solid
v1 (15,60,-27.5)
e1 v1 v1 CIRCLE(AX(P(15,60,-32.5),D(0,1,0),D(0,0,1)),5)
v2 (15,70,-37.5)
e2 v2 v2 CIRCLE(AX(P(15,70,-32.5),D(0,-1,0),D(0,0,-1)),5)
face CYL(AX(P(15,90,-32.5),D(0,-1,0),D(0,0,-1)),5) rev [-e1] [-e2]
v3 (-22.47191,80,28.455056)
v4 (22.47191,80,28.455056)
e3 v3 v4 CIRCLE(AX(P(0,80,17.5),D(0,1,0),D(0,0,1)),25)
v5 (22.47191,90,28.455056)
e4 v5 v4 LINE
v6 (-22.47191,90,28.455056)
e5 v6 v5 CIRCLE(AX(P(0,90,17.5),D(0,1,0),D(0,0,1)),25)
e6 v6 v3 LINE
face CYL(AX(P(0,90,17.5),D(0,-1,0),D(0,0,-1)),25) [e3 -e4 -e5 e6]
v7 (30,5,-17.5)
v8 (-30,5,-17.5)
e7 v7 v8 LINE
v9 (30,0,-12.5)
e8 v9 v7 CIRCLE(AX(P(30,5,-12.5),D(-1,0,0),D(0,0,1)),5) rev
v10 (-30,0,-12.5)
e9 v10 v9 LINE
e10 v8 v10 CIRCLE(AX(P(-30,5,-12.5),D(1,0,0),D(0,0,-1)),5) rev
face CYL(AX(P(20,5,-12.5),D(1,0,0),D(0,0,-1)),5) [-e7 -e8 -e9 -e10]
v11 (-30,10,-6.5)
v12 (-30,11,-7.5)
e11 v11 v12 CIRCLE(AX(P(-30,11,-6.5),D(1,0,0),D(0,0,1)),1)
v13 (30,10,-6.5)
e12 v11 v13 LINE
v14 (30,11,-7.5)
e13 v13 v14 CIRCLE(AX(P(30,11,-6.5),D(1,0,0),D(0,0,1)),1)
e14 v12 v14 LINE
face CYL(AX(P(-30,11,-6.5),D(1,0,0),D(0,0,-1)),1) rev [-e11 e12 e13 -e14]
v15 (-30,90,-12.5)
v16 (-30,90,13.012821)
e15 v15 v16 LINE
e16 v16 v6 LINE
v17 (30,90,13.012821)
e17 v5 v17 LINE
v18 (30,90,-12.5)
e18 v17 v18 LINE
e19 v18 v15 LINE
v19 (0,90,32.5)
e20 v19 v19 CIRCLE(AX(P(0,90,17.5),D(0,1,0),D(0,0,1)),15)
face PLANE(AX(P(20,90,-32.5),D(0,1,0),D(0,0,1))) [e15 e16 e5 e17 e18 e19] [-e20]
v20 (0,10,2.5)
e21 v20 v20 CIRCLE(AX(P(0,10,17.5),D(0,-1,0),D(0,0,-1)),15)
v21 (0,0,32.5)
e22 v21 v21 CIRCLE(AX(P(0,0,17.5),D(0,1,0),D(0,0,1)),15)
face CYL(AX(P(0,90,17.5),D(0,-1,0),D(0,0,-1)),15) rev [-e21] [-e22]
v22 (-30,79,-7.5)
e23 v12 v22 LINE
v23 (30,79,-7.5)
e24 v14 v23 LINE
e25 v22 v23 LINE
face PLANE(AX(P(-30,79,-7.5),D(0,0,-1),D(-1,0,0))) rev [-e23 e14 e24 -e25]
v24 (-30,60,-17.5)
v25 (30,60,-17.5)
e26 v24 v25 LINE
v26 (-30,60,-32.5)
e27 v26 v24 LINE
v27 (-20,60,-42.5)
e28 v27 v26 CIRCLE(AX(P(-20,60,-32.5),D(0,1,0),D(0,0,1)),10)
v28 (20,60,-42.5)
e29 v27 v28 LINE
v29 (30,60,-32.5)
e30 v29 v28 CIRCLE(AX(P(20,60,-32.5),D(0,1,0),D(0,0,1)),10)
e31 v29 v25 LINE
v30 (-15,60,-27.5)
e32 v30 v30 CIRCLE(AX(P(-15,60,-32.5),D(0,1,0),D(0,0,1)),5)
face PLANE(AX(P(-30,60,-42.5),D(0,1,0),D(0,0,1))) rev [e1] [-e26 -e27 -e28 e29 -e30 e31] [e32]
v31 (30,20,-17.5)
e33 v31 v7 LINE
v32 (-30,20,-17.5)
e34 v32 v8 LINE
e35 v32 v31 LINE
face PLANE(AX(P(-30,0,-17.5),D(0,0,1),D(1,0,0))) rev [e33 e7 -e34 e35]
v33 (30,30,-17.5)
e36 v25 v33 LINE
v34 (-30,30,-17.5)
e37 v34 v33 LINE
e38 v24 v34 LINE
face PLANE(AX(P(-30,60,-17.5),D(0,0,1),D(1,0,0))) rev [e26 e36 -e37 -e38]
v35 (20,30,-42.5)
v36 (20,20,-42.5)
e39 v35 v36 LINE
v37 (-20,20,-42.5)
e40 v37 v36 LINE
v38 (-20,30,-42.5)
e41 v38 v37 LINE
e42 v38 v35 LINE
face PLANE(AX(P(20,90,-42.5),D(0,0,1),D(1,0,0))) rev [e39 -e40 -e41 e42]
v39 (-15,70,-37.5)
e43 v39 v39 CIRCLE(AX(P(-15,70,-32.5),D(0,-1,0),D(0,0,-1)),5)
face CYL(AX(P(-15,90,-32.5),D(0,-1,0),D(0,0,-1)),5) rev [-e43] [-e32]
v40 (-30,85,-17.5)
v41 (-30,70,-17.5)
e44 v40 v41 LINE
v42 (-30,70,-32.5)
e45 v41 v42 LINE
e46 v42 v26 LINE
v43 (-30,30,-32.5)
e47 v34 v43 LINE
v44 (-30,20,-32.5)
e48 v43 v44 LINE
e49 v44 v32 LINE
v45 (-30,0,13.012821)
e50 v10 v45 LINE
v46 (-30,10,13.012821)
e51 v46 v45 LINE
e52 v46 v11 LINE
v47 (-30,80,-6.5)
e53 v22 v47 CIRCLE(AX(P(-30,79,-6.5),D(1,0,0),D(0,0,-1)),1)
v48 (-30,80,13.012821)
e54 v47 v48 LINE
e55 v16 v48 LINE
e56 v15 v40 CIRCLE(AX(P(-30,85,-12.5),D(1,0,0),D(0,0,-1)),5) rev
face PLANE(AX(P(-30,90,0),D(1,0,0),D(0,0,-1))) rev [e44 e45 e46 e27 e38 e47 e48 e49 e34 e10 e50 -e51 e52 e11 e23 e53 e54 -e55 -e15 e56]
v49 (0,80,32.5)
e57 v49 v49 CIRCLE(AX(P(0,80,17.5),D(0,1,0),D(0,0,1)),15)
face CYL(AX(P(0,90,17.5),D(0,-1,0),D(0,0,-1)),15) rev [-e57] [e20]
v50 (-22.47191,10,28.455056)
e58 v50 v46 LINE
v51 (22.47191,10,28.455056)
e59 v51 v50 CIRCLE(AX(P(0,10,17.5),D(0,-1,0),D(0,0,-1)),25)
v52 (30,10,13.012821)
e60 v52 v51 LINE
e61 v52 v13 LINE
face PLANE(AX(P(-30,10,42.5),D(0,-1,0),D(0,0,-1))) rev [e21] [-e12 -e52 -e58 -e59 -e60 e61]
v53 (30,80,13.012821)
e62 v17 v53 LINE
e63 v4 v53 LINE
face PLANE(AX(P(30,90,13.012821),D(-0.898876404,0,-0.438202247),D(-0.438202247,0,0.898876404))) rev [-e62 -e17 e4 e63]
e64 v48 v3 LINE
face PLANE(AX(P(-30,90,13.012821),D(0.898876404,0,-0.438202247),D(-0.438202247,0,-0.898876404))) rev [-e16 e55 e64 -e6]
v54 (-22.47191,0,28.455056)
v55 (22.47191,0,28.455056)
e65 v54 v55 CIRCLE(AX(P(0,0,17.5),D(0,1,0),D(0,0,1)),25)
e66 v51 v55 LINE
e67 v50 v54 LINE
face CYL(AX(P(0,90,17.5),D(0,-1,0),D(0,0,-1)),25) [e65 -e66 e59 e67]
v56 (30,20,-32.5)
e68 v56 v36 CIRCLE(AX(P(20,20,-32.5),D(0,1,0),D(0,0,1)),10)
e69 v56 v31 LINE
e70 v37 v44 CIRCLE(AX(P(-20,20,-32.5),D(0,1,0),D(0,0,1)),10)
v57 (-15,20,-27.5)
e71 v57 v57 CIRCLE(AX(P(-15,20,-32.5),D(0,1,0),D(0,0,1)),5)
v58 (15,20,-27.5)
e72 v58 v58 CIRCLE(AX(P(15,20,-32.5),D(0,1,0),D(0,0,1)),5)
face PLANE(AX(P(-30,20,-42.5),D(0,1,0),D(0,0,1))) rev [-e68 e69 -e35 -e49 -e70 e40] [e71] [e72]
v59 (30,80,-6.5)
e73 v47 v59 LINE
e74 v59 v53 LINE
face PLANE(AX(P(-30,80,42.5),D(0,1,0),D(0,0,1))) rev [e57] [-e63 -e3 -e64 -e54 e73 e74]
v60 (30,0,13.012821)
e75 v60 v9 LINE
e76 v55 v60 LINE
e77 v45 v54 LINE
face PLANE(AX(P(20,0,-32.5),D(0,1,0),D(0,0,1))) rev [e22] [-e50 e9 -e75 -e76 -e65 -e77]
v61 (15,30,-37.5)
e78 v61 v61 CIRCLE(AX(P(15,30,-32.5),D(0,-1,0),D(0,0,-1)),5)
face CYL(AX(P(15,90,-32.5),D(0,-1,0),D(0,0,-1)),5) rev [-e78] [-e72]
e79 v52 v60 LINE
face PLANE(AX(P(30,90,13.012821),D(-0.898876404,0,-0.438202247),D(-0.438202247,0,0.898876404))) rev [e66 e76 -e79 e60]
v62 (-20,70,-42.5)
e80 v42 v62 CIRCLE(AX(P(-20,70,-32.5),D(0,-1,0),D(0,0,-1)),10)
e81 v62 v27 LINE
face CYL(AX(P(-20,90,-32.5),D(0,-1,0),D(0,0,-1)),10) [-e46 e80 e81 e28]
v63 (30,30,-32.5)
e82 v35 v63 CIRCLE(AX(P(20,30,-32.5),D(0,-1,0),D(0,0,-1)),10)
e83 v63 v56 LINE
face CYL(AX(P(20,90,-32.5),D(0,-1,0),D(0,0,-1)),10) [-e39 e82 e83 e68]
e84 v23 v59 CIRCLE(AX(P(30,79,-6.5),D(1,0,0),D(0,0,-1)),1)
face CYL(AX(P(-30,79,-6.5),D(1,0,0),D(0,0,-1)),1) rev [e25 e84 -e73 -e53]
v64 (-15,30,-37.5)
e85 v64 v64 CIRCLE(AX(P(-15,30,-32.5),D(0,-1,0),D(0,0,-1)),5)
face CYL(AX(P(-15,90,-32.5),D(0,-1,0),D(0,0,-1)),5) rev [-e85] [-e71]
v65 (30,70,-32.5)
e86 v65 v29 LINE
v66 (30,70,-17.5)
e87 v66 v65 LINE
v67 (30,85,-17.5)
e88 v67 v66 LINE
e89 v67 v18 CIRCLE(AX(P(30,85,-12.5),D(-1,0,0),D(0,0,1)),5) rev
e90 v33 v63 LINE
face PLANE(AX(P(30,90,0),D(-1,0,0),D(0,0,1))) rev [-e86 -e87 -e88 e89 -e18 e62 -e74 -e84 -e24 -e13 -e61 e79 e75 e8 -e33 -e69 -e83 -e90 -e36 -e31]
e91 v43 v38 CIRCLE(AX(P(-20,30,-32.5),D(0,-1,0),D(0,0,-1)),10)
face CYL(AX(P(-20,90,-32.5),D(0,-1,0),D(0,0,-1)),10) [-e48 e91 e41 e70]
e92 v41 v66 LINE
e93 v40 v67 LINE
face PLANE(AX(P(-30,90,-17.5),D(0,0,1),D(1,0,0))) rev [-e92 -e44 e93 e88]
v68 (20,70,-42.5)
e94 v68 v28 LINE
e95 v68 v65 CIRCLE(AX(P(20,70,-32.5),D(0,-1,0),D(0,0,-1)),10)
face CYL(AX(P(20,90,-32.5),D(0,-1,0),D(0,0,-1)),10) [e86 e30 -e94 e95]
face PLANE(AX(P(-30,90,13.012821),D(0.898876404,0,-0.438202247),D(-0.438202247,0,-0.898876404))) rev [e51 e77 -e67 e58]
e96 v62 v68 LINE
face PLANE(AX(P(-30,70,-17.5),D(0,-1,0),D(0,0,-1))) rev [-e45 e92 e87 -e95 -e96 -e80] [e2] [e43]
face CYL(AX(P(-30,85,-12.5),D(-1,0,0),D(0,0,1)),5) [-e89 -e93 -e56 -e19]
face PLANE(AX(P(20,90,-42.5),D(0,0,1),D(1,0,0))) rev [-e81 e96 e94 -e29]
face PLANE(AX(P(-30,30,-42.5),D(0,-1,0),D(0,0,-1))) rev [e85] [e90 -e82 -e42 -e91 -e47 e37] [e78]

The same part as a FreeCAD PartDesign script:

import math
import FreeCAD as App
import Part
import Sketcher
Q = App.Units.Quantity


def edges_at(feature, points):
    """Names of the edges that pass closest to the given points."""
    edges = feature.Shape.Edges
    near = lambda p: min(range(len(edges)), key=lambda i: edges[i].distToShape(Part.Vertex(*p))[0])
    return sorted({f"Edge{near(p) + 1}" for p in points})

doc = App.newDocument("Part")
body = doc.addObject("PartDesign::Body", "Body")

# Sketch on XZ plane
sketch1 = body.newObject("Sketcher::SketchObject", "Sketch")
sketch1.AttachmentSupport = (doc.getObject("XZ_Plane"), [""])
sketch1.MapMode = "FlatFace"
sketch1.addGeometry([
    Part.ArcOfCircle(Part.Circle(App.Vector(20, -32.5, 0), App.Vector(0, 0, 1), 10), math.radians(-90), math.radians(0)),  # 0
    Part.LineSegment(App.Vector(20, -42.5, 0), App.Vector(-20, -42.5, 0)),  # 1
    Part.ArcOfCircle(Part.Circle(App.Vector(-20, -32.5, 0), App.Vector(0, 0, 1), 10), math.radians(180), math.radians(270)),  # 2
    Part.LineSegment(App.Vector(-30, -32.5, 0), App.Vector(-30, 13.012821, 0)),  # 3
    Part.LineSegment(App.Vector(-30, 13.012821, 0), App.Vector(-22.47191, 28.455056, 0)),  # 4
    Part.ArcOfCircle(Part.Circle(App.Vector(0, 17.5, 0), App.Vector(0, 0, 1), 25), math.radians(25.989234), math.radians(154.010766)),  # 5
    Part.LineSegment(App.Vector(22.47191, 28.455056, 0), App.Vector(30, 13.012821, 0)),  # 6
    Part.LineSegment(App.Vector(30, 13.012821, 0), App.Vector(30, -32.5, 0)),  # 7
    Part.Circle(App.Vector(0, 17.5, 0), App.Vector(0, 0, 1), 15),  # 8
    Part.Circle(App.Vector(-15, -32.5, 0), App.Vector(0, 0, 1), 5),  # 9
    Part.Circle(App.Vector(15, -32.5, 0), App.Vector(0, 0, 1), 5),  # 10
], False)
sketch1.addConstraint([
    Sketcher.Constraint("Tangent", 0, 1, 1, 1),
    Sketcher.Constraint("Tangent", 1, 2, 2, 2),
    Sketcher.Constraint("Tangent", 2, 1, 3, 1),
    Sketcher.Constraint("Coincident", 3, 2, 4, 1),
    Sketcher.Constraint("Tangent", 4, 2, 5, 2),
    Sketcher.Constraint("Tangent", 5, 1, 6, 1),
    Sketcher.Constraint("Coincident", 6, 2, 7, 1),
    Sketcher.Constraint("Tangent", 7, 2, 0, 2),
    Sketcher.Constraint("Horizontal", 1),
    Sketcher.Constraint("Vertical", 3),
    Sketcher.Constraint("Vertical", 7),
    Sketcher.Constraint("Coincident", 8, 3, 5, 3),
    Sketcher.Constraint("Equal", 0, 2),
    Sketcher.Constraint("Equal", 9, 10),
    Sketcher.Constraint("Symmetric", 9, 3, 10, 3, -2),
    Sketcher.Constraint("Symmetric", 4, 2, 5, 1, -2),
    Sketcher.Constraint("Horizontal", 2, 3, 9, 3),
    Sketcher.Constraint("Horizontal", 3, 2, 6, 2),
    Sketcher.Constraint("Diameter", 8, Q("30 mm")),
    Sketcher.Constraint("Diameter", 9, Q("10 mm")),
    Sketcher.Constraint("Radius", 0, Q("10 mm")),
    Sketcher.Constraint("Radius", 5, Q("25 mm")),
    Sketcher.Constraint("DistanceX", 1, 2, 1, 1, Q("40 mm")),
    Sketcher.Constraint("DistanceX", 9, 3, -1, 1, Q("15 mm")),
    Sketcher.Constraint("DistanceY", 0, 3, 5, 3, Q("50 mm")),
    Sketcher.Constraint("DistanceY", 0, 3, -1, 1, Q("32.5 mm")),
    Sketcher.Constraint("DistanceY", 3, 1, 3, 2, Q("45.512821 mm")),
])
pad1 = body.newObject("PartDesign::Pad", "Pad")
pad1.Profile = sketch1
pad1.Length = 90
pad1.Reversed = True

# Sketch on YZ plane
sketch2 = body.newObject("Sketcher::SketchObject", "Sketch001")
sketch2.AttachmentSupport = (doc.getObject("YZ_Plane"), [""])
sketch2.MapMode = "FlatFace"
sketch2.AttachmentOffset = App.Placement(App.Vector(0, 0, 30), App.Rotation())
sketch2.addGeometry([
    Part.LineSegment(App.Vector(80, -6.5, 0), App.Vector(80, 42.5, 0)),  # 0
    Part.LineSegment(App.Vector(80, 42.5, 0), App.Vector(10, 42.5, 0)),  # 1
    Part.LineSegment(App.Vector(10, 42.5, 0), App.Vector(10, -6.5, 0)),  # 2
    Part.ArcOfCircle(Part.Circle(App.Vector(11, -6.5, 0), App.Vector(0, 0, 1), 1), math.radians(-180), math.radians(-90)),  # 3
    Part.LineSegment(App.Vector(11, -7.5, 0), App.Vector(79, -7.5, 0)),  # 4
    Part.ArcOfCircle(Part.Circle(App.Vector(79, -6.5, 0), App.Vector(0, 0, 1), 1), math.radians(-90), math.radians(0)),  # 5
    Part.LineSegment(App.Vector(90, -17.5, 0), App.Vector(70, -17.5, 0)),  # 6
    Part.LineSegment(App.Vector(70, -17.5, 0), App.Vector(70, -42.5, 0)),  # 7
    Part.LineSegment(App.Vector(70, -42.5, 0), App.Vector(90, -42.5, 0)),  # 8
    Part.LineSegment(App.Vector(90, -42.5, 0), App.Vector(90, -17.5, 0)),  # 9
    Part.LineSegment(App.Vector(20, -17.5, 0), App.Vector(0, -17.5, 0)),  # 10
    Part.LineSegment(App.Vector(0, -17.5, 0), App.Vector(0, -42.5, 0)),  # 11
    Part.LineSegment(App.Vector(0, -42.5, 0), App.Vector(20, -42.5, 0)),  # 12
    Part.LineSegment(App.Vector(20, -42.5, 0), App.Vector(20, -17.5, 0)),  # 13
    Part.LineSegment(App.Vector(60, -17.5, 0), App.Vector(30, -17.5, 0)),  # 14
    Part.LineSegment(App.Vector(30, -17.5, 0), App.Vector(30, -42.5, 0)),  # 15
    Part.LineSegment(App.Vector(30, -42.5, 0), App.Vector(60, -42.5, 0)),  # 16
    Part.LineSegment(App.Vector(60, -42.5, 0), App.Vector(60, -17.5, 0)),  # 17
], False)
sketch2.addConstraint([
    Sketcher.Constraint("Coincident", 0, 2, 1, 1),
    Sketcher.Constraint("Coincident", 1, 2, 2, 1),
    Sketcher.Constraint("Tangent", 2, 2, 3, 1),
    Sketcher.Constraint("Tangent", 3, 2, 4, 1),
    Sketcher.Constraint("Tangent", 4, 2, 5, 1),
    Sketcher.Constraint("Tangent", 5, 2, 0, 1),
    Sketcher.Constraint("Coincident", 6, 2, 7, 1),
    Sketcher.Constraint("Coincident", 7, 2, 8, 1),
    Sketcher.Constraint("Coincident", 8, 2, 9, 1),
    Sketcher.Constraint("Coincident", 9, 2, 6, 1),
    Sketcher.Constraint("Coincident", 10, 2, 11, 1),
    Sketcher.Constraint("Coincident", 11, 2, 12, 1),
    Sketcher.Constraint("Coincident", 12, 2, 13, 1),
    Sketcher.Constraint("Coincident", 13, 2, 10, 1),
    Sketcher.Constraint("Coincident", 14, 2, 15, 1),
    Sketcher.Constraint("Coincident", 15, 2, 16, 1),
    Sketcher.Constraint("Coincident", 16, 2, 17, 1),
    Sketcher.Constraint("Coincident", 17, 2, 14, 1),
    Sketcher.Constraint("Vertical", 0),
    Sketcher.Constraint("Horizontal", 1),
    Sketcher.Constraint("Vertical", 2),
    Sketcher.Constraint("Horizontal", 4),
    Sketcher.Constraint("Horizontal", 6),
    Sketcher.Constraint("Vertical", 7),
    Sketcher.Constraint("Horizontal", 8),
    Sketcher.Constraint("Vertical", 9),
    Sketcher.Constraint("Horizontal", 10),
    Sketcher.Constraint("Vertical", 11),
    Sketcher.Constraint("Horizontal", 12),
    Sketcher.Constraint("Vertical", 13),
    Sketcher.Constraint("Horizontal", 14),
    Sketcher.Constraint("Vertical", 15),
    Sketcher.Constraint("Horizontal", 16),
    Sketcher.Constraint("Vertical", 17),
    Sketcher.Constraint("Equal", 3, 5),
    Sketcher.Constraint("PointOnObject", 10, 2, -2),
    Sketcher.Constraint("Horizontal", 9, 2, 10, 2),
    Sketcher.Constraint("Horizontal", 8, 2, 11, 2),
    Sketcher.Constraint("Horizontal", 13, 2, 14, 2),
    Sketcher.Constraint("Horizontal", 12, 2, 15, 2),
    Sketcher.Constraint("Equal", 8, 10),
    Sketcher.Constraint("Radius", 3, Q("1 mm")),
    Sketcher.Constraint("DistanceX", 1, 2, 1, 1, Q("70 mm")),
    Sketcher.Constraint("DistanceX", 6, 2, 6, 1, Q("20 mm")),
    Sketcher.Constraint("DistanceX", 14, 2, 14, 1, Q("30 mm")),
    Sketcher.Constraint("DistanceY", 0, 1, 0, 2, Q("49 mm")),
    Sketcher.Constraint("DistanceY", 7, 2, 7, 1, Q("25 mm")),
    Sketcher.Constraint("DistanceX", -1, 1, 3, 3, Q("11 mm")),
    Sketcher.Constraint("DistanceX", -1, 1, 6, 2, Q("70 mm")),
    Sketcher.Constraint("DistanceX", -1, 1, 14, 2, Q("30 mm")),
    Sketcher.Constraint("DistanceY", 6, 2, 4, 2, Q("10 mm")),
    Sketcher.Constraint("DistanceY", 3, 3, -1, 1, Q("6.5 mm")),
])
pocket1 = body.newObject("PartDesign::Pocket", "Pocket")
pocket1.Profile = sketch2
pocket1.Type = "ThroughAll"
doc.recompute()

fillet = body.newObject("PartDesign::Fillet", "Fillet")
fillet.Base = (pocket1, edges_at(pocket1, [(0, 0, -17.5), (0, 90, -17.5)]))
fillet.Radius = 5

doc.recompute()
